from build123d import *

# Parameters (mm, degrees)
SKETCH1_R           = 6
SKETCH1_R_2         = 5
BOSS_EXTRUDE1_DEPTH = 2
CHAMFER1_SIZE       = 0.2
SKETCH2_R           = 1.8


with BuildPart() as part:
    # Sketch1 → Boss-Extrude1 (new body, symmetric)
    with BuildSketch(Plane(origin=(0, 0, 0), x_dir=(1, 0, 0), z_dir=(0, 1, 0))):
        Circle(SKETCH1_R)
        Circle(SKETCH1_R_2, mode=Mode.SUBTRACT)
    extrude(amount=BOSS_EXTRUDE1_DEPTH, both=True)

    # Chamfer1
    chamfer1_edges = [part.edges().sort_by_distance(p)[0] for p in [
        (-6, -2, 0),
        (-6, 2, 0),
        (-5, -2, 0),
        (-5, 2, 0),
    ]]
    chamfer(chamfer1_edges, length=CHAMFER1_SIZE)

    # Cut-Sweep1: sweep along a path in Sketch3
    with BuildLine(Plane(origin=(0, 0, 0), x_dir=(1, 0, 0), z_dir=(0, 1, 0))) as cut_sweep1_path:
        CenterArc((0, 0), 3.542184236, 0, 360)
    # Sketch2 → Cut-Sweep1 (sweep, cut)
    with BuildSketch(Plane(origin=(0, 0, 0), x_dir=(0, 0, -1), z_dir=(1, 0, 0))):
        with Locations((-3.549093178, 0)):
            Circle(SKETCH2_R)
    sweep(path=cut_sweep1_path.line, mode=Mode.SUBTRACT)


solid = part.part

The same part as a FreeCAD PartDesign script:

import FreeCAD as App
import Part
import Sketcher

V = App.Vector


def edges_at(feature, points):
    """Names of the edges that pass closest to the given points."""
    edges = feature.Shape.Edges
    near = lambda p: min(range(len(edges)), key=lambda i: edges[i].distToShape(Part.Vertex(*p))[0])
    return sorted({f"Edge{near(p) + 1}" for p in points})

doc = App.newDocument("Part")
body = doc.addObject("PartDesign::Body", "Body")

# Sketch on XZ plane
sketch1 = doc.addObject("Sketcher::SketchObject", "Sketch")
body.addObject(sketch1)
sketch1.AttachmentSupport = (doc.XZ_Plane, [""])
sketch1.MapMode = "FlatFace"
sketch1.addGeometry(Part.Circle(V(0, 0, 0), V(0, 0, 1), 6), False)
sketch1.addGeometry(Part.Circle(V(0, 0, 0), V(0, 0, 1), 5), False)
sketch1.addConstraint(Sketcher.Constraint("Coincident", 0, 3, -1, 1))
sketch1.addConstraint(Sketcher.Constraint("Coincident", 1, 3, -1, 1))
sketch1.addConstraint(Sketcher.Constraint("Diameter", 0, 12.0))
sketch1.addConstraint(Sketcher.Constraint("Diameter", 1, 10.0))
pad1 = doc.addObject("PartDesign::Pad", "Pad")
body.addObject(pad1)
pad1.Profile = sketch1
pad1.Length = 4
pad1.Midplane = True
doc.recompute()

chamfer = doc.addObject("PartDesign::Chamfer", "Chamfer")
body.addObject(chamfer)
chamfer.Base = (pad1, edges_at(pad1, [
    (-6, -2, 0),
    (-6, 2, 0),
    (-5, -2, 0),
    (-5, 2, 0),
]))
chamfer.Size = 0.2

# Sketch on YZ plane
sketch2 = doc.addObject("Sketcher::SketchObject", "Sketch001")
body.addObject(sketch2)
sketch2.AttachmentSupport = (doc.YZ_Plane, [""])
sketch2.MapMode = "FlatFace"
sketch2.addGeometry(Part.Circle(V(0, 3.549093, 0), V(0, 0, 1), 1.8), False)
sketch2.addConstraint(Sketcher.Constraint("PointOnObject", 0, 3, -2))
sketch2.addConstraint(Sketcher.Constraint("Diameter", 0, 3.6))
sketch2.addConstraint(Sketcher.Constraint("DistanceY", -1, 1, 0, 3, 3.549093))

# Sketch on XZ plane
sketch3 = doc.addObject("Sketcher::SketchObject", "Sketch002")
body.addObject(sketch3)
sketch3.AttachmentSupport = (doc.XZ_Plane, [""])
sketch3.MapMode = "FlatFace"
sketch3.addGeometry(Part.Circle(V(0, 0, 0), V(0, 0, 1), 3.542184), False)
sketch3.addConstraint(Sketcher.Constraint("Coincident", 0, 3, -1, 1))
sketch3.addConstraint(Sketcher.Constraint("Diameter", 0, 7.084368))
doc.recompute()

subtractivepipe = doc.addObject("PartDesign::SubtractivePipe", "SubtractivePipe")
body.addObject(subtractivepipe)
subtractivepipe.Profile = sketch2
subtractivepipe.Spine = (sketch3, ["Edge1"])

doc.recompute()
